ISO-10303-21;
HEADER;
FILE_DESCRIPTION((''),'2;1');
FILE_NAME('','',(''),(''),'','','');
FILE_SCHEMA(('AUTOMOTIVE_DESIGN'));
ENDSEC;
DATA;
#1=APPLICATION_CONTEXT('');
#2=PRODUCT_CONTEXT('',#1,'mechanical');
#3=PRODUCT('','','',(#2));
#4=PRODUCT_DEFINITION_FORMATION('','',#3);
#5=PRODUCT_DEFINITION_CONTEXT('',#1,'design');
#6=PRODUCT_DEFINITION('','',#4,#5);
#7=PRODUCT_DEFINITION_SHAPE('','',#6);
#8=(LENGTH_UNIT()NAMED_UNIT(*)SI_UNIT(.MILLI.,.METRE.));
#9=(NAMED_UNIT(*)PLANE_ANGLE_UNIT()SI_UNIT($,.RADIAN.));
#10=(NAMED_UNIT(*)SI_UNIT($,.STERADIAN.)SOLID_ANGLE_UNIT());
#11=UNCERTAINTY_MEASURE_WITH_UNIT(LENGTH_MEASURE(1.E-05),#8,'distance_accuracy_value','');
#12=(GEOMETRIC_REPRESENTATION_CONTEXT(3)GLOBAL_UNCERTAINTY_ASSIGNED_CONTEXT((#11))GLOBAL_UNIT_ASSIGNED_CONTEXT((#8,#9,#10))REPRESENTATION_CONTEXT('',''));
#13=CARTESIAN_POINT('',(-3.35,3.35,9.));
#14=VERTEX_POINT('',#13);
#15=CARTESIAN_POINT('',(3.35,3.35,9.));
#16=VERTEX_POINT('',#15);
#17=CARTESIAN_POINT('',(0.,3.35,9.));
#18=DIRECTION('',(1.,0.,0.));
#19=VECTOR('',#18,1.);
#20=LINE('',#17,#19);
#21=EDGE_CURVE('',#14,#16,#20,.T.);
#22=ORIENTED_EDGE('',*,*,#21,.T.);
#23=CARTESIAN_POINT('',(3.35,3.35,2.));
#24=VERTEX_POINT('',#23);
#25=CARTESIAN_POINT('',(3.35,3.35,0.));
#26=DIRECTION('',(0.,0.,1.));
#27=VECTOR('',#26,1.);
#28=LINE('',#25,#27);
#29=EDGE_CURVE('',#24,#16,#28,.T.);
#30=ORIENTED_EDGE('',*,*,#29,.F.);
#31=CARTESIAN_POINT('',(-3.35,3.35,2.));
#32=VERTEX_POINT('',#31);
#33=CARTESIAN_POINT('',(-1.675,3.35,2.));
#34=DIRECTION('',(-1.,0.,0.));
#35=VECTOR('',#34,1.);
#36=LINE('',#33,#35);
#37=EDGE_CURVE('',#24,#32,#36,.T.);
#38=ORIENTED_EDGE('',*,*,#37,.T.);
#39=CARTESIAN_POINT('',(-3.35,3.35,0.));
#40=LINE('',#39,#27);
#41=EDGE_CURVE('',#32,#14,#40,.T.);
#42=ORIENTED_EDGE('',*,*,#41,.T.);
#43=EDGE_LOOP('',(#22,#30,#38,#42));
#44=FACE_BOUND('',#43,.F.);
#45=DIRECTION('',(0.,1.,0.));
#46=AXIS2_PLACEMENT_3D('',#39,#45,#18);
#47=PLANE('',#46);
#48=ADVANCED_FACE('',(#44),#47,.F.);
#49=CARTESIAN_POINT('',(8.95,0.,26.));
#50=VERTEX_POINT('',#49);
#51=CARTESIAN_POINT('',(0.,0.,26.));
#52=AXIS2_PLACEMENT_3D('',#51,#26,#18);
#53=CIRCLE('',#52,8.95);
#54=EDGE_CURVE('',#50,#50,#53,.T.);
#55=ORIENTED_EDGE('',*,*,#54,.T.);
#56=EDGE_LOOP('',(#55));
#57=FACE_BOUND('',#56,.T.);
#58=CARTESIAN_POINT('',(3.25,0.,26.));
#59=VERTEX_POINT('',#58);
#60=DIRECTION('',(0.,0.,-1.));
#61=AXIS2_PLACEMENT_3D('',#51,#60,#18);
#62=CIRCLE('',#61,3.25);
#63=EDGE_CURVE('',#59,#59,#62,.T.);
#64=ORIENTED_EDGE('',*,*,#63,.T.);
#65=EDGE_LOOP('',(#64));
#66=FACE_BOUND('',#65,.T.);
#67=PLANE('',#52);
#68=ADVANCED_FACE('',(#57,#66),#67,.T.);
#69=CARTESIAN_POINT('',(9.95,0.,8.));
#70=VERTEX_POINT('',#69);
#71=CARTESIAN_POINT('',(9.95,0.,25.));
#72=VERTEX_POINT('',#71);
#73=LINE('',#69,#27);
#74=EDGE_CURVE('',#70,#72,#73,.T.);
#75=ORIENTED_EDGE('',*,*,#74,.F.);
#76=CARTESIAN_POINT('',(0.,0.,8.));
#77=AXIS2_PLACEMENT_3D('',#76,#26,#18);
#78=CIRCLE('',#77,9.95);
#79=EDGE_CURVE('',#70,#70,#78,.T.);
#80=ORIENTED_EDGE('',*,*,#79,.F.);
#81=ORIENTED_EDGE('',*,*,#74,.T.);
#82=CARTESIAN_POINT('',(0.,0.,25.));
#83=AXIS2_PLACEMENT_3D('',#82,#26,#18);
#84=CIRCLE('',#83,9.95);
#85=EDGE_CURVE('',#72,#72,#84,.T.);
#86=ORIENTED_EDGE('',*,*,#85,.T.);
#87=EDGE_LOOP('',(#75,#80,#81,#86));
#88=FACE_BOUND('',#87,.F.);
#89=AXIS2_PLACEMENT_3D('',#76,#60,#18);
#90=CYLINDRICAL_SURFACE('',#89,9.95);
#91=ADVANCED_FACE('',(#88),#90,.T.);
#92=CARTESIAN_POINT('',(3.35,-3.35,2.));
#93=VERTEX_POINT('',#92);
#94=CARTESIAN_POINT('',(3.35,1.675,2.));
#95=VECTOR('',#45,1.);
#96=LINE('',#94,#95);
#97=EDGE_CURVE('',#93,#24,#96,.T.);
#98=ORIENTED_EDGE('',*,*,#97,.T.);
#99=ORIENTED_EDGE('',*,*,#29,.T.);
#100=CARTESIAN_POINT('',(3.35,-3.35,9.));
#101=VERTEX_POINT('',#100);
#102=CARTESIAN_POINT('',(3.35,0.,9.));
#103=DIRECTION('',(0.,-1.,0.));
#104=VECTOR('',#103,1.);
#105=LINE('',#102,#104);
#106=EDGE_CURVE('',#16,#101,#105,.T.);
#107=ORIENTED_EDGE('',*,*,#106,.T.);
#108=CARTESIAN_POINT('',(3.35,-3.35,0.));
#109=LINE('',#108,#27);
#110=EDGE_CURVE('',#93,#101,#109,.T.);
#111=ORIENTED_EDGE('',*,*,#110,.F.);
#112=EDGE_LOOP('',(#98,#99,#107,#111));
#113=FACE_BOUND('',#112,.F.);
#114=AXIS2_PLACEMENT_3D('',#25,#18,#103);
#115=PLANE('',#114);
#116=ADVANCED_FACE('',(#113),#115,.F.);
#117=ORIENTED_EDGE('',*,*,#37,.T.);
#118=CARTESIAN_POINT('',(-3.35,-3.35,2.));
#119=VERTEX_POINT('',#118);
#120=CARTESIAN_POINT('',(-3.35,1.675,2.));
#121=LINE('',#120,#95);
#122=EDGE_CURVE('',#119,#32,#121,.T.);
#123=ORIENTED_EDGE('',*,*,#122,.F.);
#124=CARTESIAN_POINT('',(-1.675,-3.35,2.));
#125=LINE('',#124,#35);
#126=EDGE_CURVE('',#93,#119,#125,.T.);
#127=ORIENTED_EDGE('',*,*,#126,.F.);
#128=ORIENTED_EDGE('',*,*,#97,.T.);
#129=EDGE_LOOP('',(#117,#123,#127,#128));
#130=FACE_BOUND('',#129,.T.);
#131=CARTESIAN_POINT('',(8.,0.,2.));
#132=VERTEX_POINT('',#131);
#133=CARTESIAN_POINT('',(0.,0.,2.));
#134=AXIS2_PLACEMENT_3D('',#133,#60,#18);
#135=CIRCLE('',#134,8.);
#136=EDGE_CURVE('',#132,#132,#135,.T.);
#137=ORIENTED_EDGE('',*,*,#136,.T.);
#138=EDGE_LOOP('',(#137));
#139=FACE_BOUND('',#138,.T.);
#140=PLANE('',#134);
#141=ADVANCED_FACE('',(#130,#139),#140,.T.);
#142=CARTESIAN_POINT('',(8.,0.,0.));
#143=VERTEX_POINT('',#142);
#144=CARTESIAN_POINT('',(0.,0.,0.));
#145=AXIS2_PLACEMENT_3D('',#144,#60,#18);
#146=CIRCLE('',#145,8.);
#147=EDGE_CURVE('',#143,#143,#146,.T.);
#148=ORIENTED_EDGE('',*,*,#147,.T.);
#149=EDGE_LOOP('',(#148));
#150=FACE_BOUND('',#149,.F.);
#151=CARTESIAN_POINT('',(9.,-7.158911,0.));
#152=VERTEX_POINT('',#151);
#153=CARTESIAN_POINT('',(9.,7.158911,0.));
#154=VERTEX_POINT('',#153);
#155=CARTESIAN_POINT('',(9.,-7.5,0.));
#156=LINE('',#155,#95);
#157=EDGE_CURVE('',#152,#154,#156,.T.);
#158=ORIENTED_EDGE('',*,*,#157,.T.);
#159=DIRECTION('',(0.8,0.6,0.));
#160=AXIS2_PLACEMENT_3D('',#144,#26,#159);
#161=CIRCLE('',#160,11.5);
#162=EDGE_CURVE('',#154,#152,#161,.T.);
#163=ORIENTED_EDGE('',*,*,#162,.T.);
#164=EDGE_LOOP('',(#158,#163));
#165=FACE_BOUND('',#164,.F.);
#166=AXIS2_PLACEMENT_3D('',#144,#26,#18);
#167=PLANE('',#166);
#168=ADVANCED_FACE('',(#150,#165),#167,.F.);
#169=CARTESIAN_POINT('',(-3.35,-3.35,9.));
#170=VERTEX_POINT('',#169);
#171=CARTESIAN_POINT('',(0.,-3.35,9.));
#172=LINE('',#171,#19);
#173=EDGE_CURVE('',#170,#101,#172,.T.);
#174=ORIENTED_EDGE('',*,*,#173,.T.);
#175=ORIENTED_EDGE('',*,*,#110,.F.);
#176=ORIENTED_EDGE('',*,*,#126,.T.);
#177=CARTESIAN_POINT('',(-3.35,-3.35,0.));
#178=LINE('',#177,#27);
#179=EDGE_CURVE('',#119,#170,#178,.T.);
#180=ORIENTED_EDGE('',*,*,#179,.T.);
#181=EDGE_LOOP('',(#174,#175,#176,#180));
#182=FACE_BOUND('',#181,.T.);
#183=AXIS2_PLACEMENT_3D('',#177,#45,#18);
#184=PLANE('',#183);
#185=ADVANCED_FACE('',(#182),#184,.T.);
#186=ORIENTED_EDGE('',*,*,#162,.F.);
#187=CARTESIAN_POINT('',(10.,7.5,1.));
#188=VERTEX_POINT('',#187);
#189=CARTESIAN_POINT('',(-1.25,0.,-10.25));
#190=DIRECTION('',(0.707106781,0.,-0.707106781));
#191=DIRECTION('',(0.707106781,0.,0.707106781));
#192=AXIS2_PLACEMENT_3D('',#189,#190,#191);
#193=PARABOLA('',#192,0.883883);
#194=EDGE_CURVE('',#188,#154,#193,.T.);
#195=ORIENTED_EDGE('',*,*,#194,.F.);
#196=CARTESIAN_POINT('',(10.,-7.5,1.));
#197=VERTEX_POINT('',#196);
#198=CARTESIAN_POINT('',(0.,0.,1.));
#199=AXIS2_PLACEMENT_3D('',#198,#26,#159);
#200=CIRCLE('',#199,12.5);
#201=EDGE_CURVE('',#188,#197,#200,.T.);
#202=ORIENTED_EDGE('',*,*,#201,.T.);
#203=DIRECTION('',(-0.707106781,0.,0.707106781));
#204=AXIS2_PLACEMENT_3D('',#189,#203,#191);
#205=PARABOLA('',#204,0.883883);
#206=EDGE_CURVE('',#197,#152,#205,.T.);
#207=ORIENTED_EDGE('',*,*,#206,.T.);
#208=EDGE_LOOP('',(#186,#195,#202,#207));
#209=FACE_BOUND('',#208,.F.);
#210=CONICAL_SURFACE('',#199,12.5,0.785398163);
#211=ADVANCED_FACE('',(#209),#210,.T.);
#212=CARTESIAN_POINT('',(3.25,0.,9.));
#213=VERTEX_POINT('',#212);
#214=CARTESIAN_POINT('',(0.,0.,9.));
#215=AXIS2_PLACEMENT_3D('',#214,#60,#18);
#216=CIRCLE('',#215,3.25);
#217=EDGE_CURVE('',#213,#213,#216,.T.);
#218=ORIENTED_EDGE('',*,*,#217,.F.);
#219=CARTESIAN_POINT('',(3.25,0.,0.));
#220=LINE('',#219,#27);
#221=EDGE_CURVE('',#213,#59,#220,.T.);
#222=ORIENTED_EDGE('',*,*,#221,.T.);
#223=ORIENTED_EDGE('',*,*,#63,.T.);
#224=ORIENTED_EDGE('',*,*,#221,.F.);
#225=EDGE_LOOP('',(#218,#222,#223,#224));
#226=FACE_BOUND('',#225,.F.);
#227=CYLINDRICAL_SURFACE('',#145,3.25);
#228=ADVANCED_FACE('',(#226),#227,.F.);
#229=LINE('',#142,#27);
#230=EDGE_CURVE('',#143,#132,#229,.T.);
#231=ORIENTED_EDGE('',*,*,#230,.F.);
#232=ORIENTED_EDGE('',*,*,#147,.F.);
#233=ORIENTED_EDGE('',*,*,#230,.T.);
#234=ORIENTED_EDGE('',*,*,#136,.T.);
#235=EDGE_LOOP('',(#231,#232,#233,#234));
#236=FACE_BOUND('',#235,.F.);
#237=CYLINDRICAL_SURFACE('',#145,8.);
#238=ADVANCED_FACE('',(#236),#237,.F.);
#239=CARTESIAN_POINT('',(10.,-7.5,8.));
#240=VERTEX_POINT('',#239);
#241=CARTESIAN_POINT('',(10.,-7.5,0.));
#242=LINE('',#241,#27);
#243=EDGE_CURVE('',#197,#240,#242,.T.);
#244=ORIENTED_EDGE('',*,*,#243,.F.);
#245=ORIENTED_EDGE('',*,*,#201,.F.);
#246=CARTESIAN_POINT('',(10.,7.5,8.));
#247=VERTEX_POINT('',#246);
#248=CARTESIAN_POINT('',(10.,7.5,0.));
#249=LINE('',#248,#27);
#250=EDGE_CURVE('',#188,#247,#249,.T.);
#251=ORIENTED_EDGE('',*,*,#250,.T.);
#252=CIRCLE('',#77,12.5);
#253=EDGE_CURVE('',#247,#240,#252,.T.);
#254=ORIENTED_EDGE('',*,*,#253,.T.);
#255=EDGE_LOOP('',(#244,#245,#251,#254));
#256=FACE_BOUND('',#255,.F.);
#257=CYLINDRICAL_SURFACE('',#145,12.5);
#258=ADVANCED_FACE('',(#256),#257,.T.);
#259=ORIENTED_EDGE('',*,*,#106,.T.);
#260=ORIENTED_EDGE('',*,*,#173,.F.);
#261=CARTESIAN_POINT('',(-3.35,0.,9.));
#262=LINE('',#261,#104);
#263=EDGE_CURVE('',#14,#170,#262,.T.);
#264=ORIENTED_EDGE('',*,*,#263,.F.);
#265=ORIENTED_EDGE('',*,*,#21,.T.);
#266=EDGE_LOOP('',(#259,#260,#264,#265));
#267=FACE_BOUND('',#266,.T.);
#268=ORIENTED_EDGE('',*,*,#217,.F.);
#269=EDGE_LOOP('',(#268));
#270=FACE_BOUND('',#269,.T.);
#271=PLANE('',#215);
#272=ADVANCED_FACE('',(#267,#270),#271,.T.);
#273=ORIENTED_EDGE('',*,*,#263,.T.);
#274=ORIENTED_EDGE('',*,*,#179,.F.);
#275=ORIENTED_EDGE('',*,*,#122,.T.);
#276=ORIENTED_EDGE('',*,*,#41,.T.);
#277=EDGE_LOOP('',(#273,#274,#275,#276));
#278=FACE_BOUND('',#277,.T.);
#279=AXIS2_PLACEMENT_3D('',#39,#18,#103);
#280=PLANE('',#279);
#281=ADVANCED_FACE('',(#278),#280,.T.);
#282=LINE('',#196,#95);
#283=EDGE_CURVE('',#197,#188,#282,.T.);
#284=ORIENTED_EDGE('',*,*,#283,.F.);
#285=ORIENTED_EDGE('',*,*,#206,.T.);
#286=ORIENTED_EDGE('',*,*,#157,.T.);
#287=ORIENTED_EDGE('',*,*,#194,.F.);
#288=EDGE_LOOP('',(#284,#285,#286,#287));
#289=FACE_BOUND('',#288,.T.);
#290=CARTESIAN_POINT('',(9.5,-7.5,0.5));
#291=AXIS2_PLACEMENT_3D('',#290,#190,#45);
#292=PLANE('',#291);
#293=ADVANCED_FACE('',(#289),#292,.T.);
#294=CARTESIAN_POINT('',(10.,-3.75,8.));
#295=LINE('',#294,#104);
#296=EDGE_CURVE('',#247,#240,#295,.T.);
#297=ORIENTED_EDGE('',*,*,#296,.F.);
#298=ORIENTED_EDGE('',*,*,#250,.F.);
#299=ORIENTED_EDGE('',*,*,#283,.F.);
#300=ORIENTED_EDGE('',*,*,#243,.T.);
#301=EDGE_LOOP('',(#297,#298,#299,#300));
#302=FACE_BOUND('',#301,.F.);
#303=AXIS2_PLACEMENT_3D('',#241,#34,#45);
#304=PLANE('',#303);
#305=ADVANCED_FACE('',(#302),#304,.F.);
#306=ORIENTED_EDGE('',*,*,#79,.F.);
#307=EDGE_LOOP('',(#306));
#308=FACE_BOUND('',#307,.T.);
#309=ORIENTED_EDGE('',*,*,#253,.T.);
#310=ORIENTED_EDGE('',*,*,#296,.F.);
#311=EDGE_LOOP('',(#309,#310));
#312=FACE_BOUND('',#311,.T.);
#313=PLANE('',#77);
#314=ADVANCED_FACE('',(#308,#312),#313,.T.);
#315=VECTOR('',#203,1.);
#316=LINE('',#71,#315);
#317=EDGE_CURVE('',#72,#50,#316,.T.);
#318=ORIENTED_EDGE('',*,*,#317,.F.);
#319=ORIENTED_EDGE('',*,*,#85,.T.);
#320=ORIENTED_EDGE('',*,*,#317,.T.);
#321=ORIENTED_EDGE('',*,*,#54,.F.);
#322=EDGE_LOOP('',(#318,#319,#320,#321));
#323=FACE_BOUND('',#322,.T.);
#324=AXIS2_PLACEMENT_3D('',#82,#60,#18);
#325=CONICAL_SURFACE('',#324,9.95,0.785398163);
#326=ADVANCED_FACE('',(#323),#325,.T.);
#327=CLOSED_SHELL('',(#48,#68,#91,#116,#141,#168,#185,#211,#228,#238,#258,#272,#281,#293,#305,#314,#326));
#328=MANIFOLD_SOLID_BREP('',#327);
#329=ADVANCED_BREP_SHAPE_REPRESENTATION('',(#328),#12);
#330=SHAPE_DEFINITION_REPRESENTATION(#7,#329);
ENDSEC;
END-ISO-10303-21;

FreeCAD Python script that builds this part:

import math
import FreeCAD as App
import Part
import Sketcher

V = App.Vector


def edges_at(feature, points):
    """Names of the edges that pass closest to the given points."""
    edges = feature.Shape.Edges
    near = lambda p: min(range(len(edges)), key=lambda i: edges[i].distToShape(Part.Vertex(*p))[0])
    return sorted({f"Edge{near(p) + 1}" for p in points})

doc = App.newDocument("Part")
body = doc.addObject("PartDesign::Body", "Body")

# Sketch on XY plane
sketch1 = body.newObject("Sketcher::SketchObject", "Sketch")
sketch1.AttachmentSupport = (doc.getObject("XY_Plane"), [""])
sketch1.MapMode = "FlatFace"
sketch1.addGeometry(Part.Circle(V(0, 0, 0), V(0, 0, 1), 12), False)
sketch1.addConstraint([
    Sketcher.Constraint("Coincident", 0, 3, -1, 1),
    Sketcher.Constraint("Diameter", 0, 25.0),
])
pad1 = body.newObject("PartDesign::Pad", "Pad")
pad1.Profile = sketch1
pad1.Length = 8

# Sketch on XY plane
sketch2 = body.newObject("Sketcher::SketchObject", "Sketch001")
sketch2.AttachmentSupport = (doc.getObject("XY_Plane"), [""])
sketch2.MapMode = "FlatFace"
sketch2.AttachmentOffset = App.Placement(V(0, 0, 8), App.Rotation())
sketch2.addGeometry(Part.Circle(V(0, 0, 0), V(0, 0, 1), 10), False)
sketch2.addConstraint([
    Sketcher.Constraint("Coincident", 0, 3, -1, 1),
    Sketcher.Constraint("Diameter", 0, 19.9),
])
pad2 = body.newObject("PartDesign::Pad", "Pad001")
pad2.Profile = sketch2
pad2.Length = 18

# Sketch on XY plane
sketch3 = body.newObject("Sketcher::SketchObject", "Sketch002")
sketch3.AttachmentSupport = (doc.getObject("XY_Plane"), [""])
sketch3.MapMode = "FlatFace"
sketch3.addGeometry([
    Part.Circle(V(0, 0, 0), V(0, 0, 1), 3.2),
    Part.LineSegment(V(10, -7.5, 0), V(10, 7.5, 0)),
    Part.ArcOfCircle(Part.Circle(V(0, 0, 0), V(0, 0, 1), 12.5), math.radians(-37), math.radians(37)),
], False)
sketch3.addConstraint([
    Sketcher.Constraint("Coincident", 1, 1, 2, 1),
    Sketcher.Constraint("Coincident", 2, 2, 1, 2),
    Sketcher.Constraint("Vertical", 1),
    Sketcher.Constraint("Coincident", 0, 3, -1, 1),
    Sketcher.Constraint("Coincident", 2, 3, -1, 1),
    Sketcher.Constraint("Diameter", 0, 6.5),
    Sketcher.Constraint("Radius", 2, 12.5),
    Sketcher.Constraint("DistanceY", 1, 1, 1, 2, 15.0),
])
pocket1 = body.newObject("PartDesign::Pocket", "Pocket")
pocket1.Profile = sketch3
pocket1.Type = "ThroughAll"
pocket1.Reversed = True

# Sketch on XY plane
sketch4 = body.newObject("Sketcher::SketchObject", "Sketch003")
sketch4.AttachmentSupport = (doc.getObject("XY_Plane"), [""])
sketch4.MapMode = "FlatFace"
sketch4.addGeometry([
    Part.LineSegment(V(-3, -3, 0), V(-3, 3, 0)),
    Part.LineSegment(V(-3, 3, 0), V(3, 3, 0)),
    Part.LineSegment(V(3, 3, 0), V(3, -3, 0)),
    Part.LineSegment(V(3, -3, 0), V(-3, -3, 0)),
], False)
sketch4.addConstraint([
    Sketcher.Constraint("Coincident", 0, 2, 1, 1),
    Sketcher.Constraint("Coincident", 1, 2, 2, 1),
    Sketcher.Constraint("Coincident", 2, 2, 3, 1),
    Sketcher.Constraint("Coincident", 3, 2, 0, 1),
    Sketcher.Constraint("Vertical", 0),
    Sketcher.Constraint("Horizontal", 1),
    Sketcher.Constraint("Vertical", 2),
    Sketcher.Constraint("Horizontal", 3),
    Sketcher.Constraint("Symmetric", 0, 2, 2, 2, -1, 1),
    Sketcher.Constraint("Equal", 3, 0),
    Sketcher.Constraint("DistanceX", 1, 1, 1, 2, 6.7),
])
pocket2 = body.newObject("PartDesign::Pocket", "Pocket001")
pocket2.Profile = sketch4
pocket2.Length = 9
pocket2.Reversed = True

# Sketch on XY plane
sketch5 = body.newObject("Sketcher::SketchObject", "Sketch004")
sketch5.AttachmentSupport = (doc.getObject("XY_Plane"), [""])
sketch5.MapMode = "FlatFace"
sketch5.addGeometry(Part.Circle(V(0, 0, 0), V(0, 0, 1), 8), False)
sketch5.addConstraint([
    Sketcher.Constraint("Coincident", 0, 3, -1, 1),
    Sketcher.Constraint("Diameter", 0, 16.0),
])
pocket3 = body.newObject("PartDesign::Pocket", "Pocket002")
pocket3.Profile = sketch5
pocket3.Length = 2
pocket3.Reversed = True
doc.recompute()

chamfer = body.newObject("PartDesign::Chamfer", "Chamfer")
chamfer.Base = (pocket3, edges_at(pocket3, [(-12.5, 0, 0), (10, 0, 0)]))
chamfer.Size = 1
doc.recompute()

chamfer2 = body.newObject("PartDesign::Chamfer", "Chamfer001")
chamfer2.Base = (chamfer, edges_at(chamfer, [(-9.95, 0, 26)]))
chamfer2.Size = 1

doc.recompute()
